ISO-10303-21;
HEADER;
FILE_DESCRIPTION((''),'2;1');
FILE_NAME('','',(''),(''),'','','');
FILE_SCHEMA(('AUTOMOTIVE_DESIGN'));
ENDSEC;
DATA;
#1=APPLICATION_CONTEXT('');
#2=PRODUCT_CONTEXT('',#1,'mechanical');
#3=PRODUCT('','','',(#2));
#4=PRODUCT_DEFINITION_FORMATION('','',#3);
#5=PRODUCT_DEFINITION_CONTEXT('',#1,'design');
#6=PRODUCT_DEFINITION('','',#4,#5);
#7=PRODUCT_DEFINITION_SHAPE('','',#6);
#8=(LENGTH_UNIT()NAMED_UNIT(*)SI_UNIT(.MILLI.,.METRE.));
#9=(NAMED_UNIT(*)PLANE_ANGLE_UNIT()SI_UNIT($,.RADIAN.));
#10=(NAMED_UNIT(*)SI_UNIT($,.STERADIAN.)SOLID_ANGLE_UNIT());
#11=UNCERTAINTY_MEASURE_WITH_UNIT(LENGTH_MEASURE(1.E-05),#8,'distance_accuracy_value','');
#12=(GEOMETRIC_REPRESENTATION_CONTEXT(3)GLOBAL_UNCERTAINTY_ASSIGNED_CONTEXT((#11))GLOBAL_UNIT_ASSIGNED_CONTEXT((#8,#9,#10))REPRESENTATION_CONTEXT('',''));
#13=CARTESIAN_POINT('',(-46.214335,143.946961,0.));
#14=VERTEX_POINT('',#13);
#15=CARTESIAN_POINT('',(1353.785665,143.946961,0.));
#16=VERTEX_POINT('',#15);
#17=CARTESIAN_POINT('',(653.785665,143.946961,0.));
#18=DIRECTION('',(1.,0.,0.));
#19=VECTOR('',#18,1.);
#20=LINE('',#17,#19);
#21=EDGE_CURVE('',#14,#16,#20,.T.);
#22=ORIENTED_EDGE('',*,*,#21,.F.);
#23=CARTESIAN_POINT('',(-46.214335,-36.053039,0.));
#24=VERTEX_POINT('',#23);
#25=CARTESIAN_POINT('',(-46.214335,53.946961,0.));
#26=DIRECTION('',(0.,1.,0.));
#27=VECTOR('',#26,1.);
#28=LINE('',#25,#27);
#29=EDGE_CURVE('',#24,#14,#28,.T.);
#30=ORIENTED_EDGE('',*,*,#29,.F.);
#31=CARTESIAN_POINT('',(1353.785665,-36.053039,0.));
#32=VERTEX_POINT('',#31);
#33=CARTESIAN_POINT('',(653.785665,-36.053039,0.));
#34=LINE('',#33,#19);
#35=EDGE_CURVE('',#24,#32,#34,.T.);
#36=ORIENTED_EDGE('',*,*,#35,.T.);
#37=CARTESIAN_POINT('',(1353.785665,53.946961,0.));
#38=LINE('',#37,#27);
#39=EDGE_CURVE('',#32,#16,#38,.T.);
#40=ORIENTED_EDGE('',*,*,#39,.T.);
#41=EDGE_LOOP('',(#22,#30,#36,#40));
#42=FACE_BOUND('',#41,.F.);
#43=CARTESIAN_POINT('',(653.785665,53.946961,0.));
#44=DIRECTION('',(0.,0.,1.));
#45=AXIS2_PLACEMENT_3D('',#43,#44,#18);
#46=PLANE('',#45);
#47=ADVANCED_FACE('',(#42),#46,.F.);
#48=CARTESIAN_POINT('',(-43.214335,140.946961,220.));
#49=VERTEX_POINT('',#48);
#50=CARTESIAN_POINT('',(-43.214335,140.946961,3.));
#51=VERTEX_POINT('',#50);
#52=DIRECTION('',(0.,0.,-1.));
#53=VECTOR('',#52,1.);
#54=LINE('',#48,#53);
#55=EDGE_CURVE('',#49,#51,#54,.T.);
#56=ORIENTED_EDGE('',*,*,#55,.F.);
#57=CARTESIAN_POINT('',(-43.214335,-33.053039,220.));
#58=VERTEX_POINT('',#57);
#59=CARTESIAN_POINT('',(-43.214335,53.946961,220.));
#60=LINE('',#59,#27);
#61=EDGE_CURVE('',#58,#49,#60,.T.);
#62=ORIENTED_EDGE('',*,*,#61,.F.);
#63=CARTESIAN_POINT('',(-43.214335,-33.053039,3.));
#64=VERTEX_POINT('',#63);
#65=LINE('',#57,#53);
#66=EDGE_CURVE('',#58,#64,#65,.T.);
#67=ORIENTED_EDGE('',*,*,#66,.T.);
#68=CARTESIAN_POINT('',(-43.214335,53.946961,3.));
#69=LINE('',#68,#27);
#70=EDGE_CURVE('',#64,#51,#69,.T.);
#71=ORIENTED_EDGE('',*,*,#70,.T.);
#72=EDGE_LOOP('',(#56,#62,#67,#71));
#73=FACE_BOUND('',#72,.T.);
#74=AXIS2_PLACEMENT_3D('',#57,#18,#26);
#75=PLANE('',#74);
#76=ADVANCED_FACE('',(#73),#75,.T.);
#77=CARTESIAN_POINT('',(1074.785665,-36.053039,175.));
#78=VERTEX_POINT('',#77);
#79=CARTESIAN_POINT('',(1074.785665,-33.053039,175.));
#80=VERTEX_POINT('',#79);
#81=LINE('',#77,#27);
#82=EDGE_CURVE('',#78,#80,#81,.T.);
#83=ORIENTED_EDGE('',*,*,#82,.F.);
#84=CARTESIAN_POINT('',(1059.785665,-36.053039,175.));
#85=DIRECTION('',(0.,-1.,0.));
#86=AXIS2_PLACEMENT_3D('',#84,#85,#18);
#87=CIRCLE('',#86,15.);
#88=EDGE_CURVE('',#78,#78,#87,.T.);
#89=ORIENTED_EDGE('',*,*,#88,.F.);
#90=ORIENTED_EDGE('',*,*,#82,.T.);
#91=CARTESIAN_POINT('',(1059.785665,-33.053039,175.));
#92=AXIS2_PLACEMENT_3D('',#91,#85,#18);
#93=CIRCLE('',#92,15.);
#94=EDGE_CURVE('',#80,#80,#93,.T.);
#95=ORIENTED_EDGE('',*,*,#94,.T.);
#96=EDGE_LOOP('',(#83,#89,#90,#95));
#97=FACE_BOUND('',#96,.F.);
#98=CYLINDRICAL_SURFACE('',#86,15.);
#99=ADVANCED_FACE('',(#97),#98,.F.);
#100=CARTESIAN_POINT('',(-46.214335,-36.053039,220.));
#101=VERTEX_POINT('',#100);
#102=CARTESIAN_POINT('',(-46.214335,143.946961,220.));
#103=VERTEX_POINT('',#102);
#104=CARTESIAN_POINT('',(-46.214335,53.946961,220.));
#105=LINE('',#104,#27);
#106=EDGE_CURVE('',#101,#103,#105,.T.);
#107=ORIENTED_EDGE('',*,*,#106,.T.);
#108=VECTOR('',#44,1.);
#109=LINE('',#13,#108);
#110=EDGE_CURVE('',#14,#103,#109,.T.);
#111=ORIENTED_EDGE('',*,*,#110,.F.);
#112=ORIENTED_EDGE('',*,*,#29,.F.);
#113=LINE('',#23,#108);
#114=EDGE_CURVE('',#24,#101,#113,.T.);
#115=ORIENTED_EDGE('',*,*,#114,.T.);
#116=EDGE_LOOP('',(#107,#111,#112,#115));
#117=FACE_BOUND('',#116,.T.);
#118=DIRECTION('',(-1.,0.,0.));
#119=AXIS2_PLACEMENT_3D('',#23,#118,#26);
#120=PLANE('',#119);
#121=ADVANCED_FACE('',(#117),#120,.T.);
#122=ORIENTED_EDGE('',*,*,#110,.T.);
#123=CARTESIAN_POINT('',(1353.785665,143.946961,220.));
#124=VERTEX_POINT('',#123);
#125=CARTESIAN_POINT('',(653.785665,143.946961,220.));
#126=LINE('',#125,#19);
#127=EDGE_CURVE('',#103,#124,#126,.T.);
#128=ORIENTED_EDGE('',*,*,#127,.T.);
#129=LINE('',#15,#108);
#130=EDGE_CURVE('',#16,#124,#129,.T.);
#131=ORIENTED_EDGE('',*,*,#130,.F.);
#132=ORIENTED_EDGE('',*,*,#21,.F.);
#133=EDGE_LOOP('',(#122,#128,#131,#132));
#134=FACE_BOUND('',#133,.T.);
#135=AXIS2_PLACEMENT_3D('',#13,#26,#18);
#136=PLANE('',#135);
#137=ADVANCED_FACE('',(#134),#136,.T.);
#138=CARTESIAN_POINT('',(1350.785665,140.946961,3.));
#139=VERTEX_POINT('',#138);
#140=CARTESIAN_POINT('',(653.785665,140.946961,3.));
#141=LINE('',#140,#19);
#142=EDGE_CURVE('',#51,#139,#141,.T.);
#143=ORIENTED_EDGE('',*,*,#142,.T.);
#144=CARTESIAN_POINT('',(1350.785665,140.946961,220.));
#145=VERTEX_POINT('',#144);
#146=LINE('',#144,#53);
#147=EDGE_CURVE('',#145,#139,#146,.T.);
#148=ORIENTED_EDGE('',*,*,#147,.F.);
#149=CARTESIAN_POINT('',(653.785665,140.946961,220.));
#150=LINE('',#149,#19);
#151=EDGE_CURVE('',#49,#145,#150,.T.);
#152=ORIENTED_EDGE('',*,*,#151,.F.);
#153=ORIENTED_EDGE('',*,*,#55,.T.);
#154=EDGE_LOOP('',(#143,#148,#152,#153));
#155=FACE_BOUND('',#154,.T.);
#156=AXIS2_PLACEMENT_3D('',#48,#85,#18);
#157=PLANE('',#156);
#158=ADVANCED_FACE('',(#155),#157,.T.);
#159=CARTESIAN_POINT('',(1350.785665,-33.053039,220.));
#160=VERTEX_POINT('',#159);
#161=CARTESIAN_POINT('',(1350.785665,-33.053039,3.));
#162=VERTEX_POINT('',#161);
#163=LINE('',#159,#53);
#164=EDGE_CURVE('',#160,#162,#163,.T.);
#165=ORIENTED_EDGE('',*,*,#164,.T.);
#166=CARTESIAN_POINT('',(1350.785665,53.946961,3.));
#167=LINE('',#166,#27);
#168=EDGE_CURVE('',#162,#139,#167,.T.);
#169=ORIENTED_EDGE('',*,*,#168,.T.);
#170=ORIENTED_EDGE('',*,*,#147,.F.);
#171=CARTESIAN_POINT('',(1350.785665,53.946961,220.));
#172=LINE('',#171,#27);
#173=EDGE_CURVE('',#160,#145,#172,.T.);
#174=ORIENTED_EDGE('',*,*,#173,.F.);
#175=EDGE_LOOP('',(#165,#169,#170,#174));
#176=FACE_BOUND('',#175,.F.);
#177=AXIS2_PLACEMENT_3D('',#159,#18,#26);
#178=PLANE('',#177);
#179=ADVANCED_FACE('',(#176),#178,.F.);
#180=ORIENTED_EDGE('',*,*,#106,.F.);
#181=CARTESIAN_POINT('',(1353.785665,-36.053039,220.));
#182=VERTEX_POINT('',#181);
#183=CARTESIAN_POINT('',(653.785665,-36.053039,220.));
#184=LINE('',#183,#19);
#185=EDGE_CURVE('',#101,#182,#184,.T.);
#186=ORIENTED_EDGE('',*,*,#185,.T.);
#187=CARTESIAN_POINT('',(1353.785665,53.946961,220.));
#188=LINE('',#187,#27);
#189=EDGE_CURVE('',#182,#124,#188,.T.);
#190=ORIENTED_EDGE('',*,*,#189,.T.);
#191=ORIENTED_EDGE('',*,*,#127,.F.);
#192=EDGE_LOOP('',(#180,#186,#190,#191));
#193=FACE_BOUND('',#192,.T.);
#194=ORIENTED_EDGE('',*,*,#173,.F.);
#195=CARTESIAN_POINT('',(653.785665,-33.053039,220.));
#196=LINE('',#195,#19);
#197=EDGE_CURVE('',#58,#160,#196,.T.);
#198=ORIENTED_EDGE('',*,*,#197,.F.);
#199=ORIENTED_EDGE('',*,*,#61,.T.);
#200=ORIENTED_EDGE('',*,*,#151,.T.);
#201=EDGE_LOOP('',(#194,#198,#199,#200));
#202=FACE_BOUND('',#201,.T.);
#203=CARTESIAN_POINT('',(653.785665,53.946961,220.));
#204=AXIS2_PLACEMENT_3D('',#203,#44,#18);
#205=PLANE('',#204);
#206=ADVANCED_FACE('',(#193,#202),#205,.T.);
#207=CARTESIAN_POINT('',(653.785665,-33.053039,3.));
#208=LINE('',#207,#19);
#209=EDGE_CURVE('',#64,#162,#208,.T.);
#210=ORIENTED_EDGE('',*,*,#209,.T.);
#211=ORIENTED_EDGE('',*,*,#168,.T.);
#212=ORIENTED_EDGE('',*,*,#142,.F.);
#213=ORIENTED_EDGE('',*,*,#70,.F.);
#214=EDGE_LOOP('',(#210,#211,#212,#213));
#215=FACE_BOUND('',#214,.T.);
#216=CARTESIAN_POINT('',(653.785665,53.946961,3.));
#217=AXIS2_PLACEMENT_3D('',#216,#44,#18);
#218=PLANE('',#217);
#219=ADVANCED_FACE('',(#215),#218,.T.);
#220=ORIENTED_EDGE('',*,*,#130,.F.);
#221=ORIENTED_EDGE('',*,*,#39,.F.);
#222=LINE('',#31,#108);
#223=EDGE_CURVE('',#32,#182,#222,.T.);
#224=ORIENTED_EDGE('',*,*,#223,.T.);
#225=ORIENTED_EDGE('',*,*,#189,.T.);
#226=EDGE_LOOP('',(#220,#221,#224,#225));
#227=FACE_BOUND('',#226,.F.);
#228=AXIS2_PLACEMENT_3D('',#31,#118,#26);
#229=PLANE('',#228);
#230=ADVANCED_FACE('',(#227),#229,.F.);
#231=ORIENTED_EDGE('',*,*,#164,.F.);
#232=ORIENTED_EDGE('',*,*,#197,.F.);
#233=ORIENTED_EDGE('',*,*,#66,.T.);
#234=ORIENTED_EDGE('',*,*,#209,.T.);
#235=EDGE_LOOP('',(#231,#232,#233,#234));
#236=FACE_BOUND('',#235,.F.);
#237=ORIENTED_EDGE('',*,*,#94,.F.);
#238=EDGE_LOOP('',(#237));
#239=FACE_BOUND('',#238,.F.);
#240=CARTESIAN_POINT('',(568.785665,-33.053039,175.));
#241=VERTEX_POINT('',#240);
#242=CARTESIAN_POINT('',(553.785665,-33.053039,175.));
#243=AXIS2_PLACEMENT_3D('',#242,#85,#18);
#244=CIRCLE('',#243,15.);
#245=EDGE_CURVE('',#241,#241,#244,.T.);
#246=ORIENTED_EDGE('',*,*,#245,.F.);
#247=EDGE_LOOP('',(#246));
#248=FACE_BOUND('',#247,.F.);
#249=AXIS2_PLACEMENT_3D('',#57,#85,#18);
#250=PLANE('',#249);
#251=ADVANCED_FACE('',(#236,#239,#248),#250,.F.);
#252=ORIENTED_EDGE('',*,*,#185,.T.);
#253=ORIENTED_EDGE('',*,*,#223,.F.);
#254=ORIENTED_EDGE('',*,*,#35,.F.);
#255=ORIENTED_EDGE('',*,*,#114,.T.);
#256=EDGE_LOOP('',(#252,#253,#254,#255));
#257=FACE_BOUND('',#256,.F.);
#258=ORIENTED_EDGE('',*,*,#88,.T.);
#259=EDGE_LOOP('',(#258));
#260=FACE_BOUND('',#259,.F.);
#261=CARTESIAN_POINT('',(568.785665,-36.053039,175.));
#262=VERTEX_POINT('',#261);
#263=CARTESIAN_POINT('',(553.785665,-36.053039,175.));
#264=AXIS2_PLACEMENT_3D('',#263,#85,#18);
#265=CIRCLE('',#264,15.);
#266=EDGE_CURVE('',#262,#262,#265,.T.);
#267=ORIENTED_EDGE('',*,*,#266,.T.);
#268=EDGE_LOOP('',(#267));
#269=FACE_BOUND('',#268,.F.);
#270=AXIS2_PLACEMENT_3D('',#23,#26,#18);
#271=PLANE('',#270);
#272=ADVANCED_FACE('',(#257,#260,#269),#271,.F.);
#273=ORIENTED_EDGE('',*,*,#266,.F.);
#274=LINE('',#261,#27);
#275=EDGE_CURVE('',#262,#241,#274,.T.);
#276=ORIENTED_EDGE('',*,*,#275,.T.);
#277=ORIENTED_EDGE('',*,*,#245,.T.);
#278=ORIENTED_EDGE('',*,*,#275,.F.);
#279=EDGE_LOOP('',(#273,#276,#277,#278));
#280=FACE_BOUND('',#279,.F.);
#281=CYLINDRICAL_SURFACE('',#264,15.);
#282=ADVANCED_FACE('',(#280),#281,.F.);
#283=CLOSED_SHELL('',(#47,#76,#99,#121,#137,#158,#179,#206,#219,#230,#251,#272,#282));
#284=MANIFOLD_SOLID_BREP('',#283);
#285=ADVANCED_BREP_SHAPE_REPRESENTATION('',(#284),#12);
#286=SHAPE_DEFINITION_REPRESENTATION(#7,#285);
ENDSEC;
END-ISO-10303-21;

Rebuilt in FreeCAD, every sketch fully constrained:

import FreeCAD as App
import Part
import Sketcher
Q = App.Units.Quantity


def add_polygon(sketch, points):
    """Adds a closed chain of lines whose ends are joined by coincident constraints."""
    first, n = sketch.GeometryCount, len(points)
    for a, b in zip(points, points[1:] + points[:1]):
        sketch.addGeometry(Part.LineSegment(App.Vector(*a, 0), App.Vector(*b, 0)), False)
    for i in range(n):
        sketch.addConstraint(Sketcher.Constraint("Coincident", first + i, 2, first + (i + 1) % n, 1))

doc = App.newDocument("Part")
body = doc.addObject("PartDesign::Body", "Body")

# Sketch on XY plane
sketch1 = body.newObject("Sketcher::SketchObject", "Sketch")
sketch1.AttachmentSupport = (doc.getObject("XY_Plane"), [""])
sketch1.MapMode = "FlatFace"
add_polygon(sketch1, [(-46, 144), (-46, -36), (1354, -36), (1354, 144)])  # lines 0-3
sketch1.addConstraint(Sketcher.Constraint("Vertical", 0))
sketch1.addConstraint(Sketcher.Constraint("Horizontal", 1))
sketch1.addConstraint(Sketcher.Constraint("Vertical", 2))
sketch1.addConstraint(Sketcher.Constraint("Horizontal", 3))
sketch1.addConstraint(Sketcher.Constraint("DistanceX", 1, 1, 1, 2, Q("1400 mm")))
sketch1.addConstraint(Sketcher.Constraint("DistanceY", 0, 2, 0, 1, Q("180 mm")))
sketch1.addConstraint(Sketcher.Constraint("DistanceY", 0, 2, -1, 1, Q("36.053039 mm")))
sketch1.addConstraint(Sketcher.Constraint("DistanceX", 0, 2, -1, 1, Q("46.214335 mm")))
pad1 = body.newObject("PartDesign::Pad", "Pad")
pad1.Profile = sketch1
pad1.Length = 220

# Sketch on XY plane
sketch2 = body.newObject("Sketcher::SketchObject", "Sketch001")
sketch2.AttachmentSupport = (doc.getObject("XY_Plane"), [""])
sketch2.MapMode = "FlatFace"
sketch2.AttachmentOffset = App.Placement(App.Vector(0, 0, 220), App.Rotation())
add_polygon(sketch2, [(-43, 141), (-43, -33), (1351, -33), (1351, 141)])  # lines 0-3
sketch2.addConstraint(Sketcher.Constraint("Vertical", 0))
sketch2.addConstraint(Sketcher.Constraint("Horizontal", 1))
sketch2.addConstraint(Sketcher.Constraint("Vertical", 2))
sketch2.addConstraint(Sketcher.Constraint("Horizontal", 3))
sketch2.addConstraint(Sketcher.Constraint("DistanceX", 1, 1, 1, 2, Q("1394 mm")))
sketch2.addConstraint(Sketcher.Constraint("DistanceY", 0, 2, 0, 1, Q("174 mm")))
sketch2.addConstraint(Sketcher.Constraint("DistanceY", 0, 2, -1, 1, Q("33.053039 mm")))
sketch2.addConstraint(Sketcher.Constraint("DistanceX", 0, 2, -1, 1, Q("43.214335 mm")))
pocket1 = body.newObject("PartDesign::Pocket", "Pocket")
pocket1.Profile = sketch2
pocket1.Length = 217

# Sketch on XZ plane
sketch3 = body.newObject("Sketcher::SketchObject", "Sketch002")
sketch3.AttachmentSupport = (doc.getObject("XZ_Plane"), [""])
sketch3.MapMode = "FlatFace"
sketch3.AttachmentOffset = App.Placement(App.Vector(0, 0, 36.053039), App.Rotation())
sketch3.addGeometry(Part.Circle(App.Vector(554, 175, 0), App.Vector(0, 0, 1), 15), False)
sketch3.addGeometry(Part.Circle(App.Vector(1060, 175, 0), App.Vector(0, 0, 1), 15), False)
sketch3.addConstraint(Sketcher.Constraint("Equal", 0, 1))
sketch3.addConstraint(Sketcher.Constraint("Horizontal", 0, 3, 1, 3))
sketch3.addConstraint(Sketcher.Constraint("Diameter", 0, Q("30 mm")))
sketch3.addConstraint(Sketcher.Constraint("DistanceY", -1, 1, 0, 3, Q("175 mm")))
sketch3.addConstraint(Sketcher.Constraint("DistanceX", 0, 3, 1, 3, Q("506 mm")))
sketch3.addConstraint(Sketcher.Constraint("DistanceX", -1, 1, 0, 3, Q("553.785665 mm")))
pocket2 = body.newObject("PartDesign::Pocket", "Pocket001")
pocket2.Profile = sketch3
pocket2.Length = 3

doc.recompute()
